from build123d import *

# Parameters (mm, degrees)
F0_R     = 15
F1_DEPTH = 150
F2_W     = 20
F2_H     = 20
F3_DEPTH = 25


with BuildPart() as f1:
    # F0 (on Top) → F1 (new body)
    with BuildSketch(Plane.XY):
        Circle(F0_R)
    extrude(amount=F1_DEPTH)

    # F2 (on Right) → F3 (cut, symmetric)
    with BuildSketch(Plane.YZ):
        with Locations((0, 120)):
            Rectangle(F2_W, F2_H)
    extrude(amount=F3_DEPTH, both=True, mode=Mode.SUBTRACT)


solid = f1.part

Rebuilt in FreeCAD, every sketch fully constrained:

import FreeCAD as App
import Part
import Sketcher
from FreeCAD import Vector
Q = App.Units.Quantity

doc = App.newDocument("Part")
params = doc.addObject("Spreadsheet::Sheet", "Params")
for row, (alias, value) in enumerate([
    ("sketch1_diameter", "30 mm"),
    ("pad1_length", "150 mm"),
    ("sketch2_width", "20 mm"),
    ("pocket1_length", "50 mm"),
], start=1):
    params.set(f"A{row}", alias)
    params.set(f"B{row}", "=" + value)
    params.setAlias(f"B{row}", alias)

body = doc.addObject("PartDesign::Body", "Body")

# Sketch on XY plane
sketch1 = body.newObject("Sketcher::SketchObject", "Sketch")
sketch1.AttachmentSupport = (doc.getObject("XY_Plane"), [""])
sketch1.MapMode = "FlatFace"
sketch1.addGeometry(Part.Circle(Vector(0, 0, 0), Vector(0, 0, 1), 15), False)
sketch1.addConstraint([
    Sketcher.Constraint("Coincident", 0, 3, -1, 1),
    Sketcher.Constraint("Diameter", 0, Q("30 mm")),
])
sketch1.setExpression("Constraints[1]", "Params.sketch1_diameter")
pad1 = body.newObject("PartDesign::Pad", "Pad")
pad1.Profile = sketch1
pad1.setExpression("Length", "Params.pad1_length")

# Sketch on YZ plane
sketch2 = body.newObject("Sketcher::SketchObject", "Sketch001")
sketch2.AttachmentSupport = (doc.getObject("YZ_Plane"), [""])
sketch2.MapMode = "FlatFace"
sketch2.addGeometry([
    Part.LineSegment(Vector(-10, 130, 0), Vector(-10, 110, 0)),
    Part.LineSegment(Vector(-10, 110, 0), Vector(10, 110, 0)),
    Part.LineSegment(Vector(10, 110, 0), Vector(10, 130, 0)),
    Part.LineSegment(Vector(10, 130, 0), Vector(-10, 130, 0)),
], False)
sketch2.addConstraint([
    Sketcher.Constraint("Coincident", 0, 2, 1, 1),
    Sketcher.Constraint("Coincident", 1, 2, 2, 1),
    Sketcher.Constraint("Coincident", 2, 2, 3, 1),
    Sketcher.Constraint("Coincident", 3, 2, 0, 1),
    Sketcher.Constraint("Vertical", 0),
    Sketcher.Constraint("Horizontal", 1),
    Sketcher.Constraint("Vertical", 2),
    Sketcher.Constraint("Horizontal", 3),
    Sketcher.Constraint("Equal", 3, 0),
    Sketcher.Constraint("DistanceX", 1, 1, 1, 2, Q("20 mm")),
    Sketcher.Constraint("DistanceX", 0, 2, -1, 1, Q("10 mm")),
    Sketcher.Constraint("DistanceY", -1, 1, 0, 2, Q("110 mm")),
])
sketch2.setExpression("Constraints[9]", "Params.sketch2_width")
pocket1 = body.newObject("PartDesign::Pocket", "Pocket")
pocket1.Profile = sketch2
pocket1.setExpression("Length", "Params.pocket1_length")
pocket1.Midplane = True

doc.recompute()
